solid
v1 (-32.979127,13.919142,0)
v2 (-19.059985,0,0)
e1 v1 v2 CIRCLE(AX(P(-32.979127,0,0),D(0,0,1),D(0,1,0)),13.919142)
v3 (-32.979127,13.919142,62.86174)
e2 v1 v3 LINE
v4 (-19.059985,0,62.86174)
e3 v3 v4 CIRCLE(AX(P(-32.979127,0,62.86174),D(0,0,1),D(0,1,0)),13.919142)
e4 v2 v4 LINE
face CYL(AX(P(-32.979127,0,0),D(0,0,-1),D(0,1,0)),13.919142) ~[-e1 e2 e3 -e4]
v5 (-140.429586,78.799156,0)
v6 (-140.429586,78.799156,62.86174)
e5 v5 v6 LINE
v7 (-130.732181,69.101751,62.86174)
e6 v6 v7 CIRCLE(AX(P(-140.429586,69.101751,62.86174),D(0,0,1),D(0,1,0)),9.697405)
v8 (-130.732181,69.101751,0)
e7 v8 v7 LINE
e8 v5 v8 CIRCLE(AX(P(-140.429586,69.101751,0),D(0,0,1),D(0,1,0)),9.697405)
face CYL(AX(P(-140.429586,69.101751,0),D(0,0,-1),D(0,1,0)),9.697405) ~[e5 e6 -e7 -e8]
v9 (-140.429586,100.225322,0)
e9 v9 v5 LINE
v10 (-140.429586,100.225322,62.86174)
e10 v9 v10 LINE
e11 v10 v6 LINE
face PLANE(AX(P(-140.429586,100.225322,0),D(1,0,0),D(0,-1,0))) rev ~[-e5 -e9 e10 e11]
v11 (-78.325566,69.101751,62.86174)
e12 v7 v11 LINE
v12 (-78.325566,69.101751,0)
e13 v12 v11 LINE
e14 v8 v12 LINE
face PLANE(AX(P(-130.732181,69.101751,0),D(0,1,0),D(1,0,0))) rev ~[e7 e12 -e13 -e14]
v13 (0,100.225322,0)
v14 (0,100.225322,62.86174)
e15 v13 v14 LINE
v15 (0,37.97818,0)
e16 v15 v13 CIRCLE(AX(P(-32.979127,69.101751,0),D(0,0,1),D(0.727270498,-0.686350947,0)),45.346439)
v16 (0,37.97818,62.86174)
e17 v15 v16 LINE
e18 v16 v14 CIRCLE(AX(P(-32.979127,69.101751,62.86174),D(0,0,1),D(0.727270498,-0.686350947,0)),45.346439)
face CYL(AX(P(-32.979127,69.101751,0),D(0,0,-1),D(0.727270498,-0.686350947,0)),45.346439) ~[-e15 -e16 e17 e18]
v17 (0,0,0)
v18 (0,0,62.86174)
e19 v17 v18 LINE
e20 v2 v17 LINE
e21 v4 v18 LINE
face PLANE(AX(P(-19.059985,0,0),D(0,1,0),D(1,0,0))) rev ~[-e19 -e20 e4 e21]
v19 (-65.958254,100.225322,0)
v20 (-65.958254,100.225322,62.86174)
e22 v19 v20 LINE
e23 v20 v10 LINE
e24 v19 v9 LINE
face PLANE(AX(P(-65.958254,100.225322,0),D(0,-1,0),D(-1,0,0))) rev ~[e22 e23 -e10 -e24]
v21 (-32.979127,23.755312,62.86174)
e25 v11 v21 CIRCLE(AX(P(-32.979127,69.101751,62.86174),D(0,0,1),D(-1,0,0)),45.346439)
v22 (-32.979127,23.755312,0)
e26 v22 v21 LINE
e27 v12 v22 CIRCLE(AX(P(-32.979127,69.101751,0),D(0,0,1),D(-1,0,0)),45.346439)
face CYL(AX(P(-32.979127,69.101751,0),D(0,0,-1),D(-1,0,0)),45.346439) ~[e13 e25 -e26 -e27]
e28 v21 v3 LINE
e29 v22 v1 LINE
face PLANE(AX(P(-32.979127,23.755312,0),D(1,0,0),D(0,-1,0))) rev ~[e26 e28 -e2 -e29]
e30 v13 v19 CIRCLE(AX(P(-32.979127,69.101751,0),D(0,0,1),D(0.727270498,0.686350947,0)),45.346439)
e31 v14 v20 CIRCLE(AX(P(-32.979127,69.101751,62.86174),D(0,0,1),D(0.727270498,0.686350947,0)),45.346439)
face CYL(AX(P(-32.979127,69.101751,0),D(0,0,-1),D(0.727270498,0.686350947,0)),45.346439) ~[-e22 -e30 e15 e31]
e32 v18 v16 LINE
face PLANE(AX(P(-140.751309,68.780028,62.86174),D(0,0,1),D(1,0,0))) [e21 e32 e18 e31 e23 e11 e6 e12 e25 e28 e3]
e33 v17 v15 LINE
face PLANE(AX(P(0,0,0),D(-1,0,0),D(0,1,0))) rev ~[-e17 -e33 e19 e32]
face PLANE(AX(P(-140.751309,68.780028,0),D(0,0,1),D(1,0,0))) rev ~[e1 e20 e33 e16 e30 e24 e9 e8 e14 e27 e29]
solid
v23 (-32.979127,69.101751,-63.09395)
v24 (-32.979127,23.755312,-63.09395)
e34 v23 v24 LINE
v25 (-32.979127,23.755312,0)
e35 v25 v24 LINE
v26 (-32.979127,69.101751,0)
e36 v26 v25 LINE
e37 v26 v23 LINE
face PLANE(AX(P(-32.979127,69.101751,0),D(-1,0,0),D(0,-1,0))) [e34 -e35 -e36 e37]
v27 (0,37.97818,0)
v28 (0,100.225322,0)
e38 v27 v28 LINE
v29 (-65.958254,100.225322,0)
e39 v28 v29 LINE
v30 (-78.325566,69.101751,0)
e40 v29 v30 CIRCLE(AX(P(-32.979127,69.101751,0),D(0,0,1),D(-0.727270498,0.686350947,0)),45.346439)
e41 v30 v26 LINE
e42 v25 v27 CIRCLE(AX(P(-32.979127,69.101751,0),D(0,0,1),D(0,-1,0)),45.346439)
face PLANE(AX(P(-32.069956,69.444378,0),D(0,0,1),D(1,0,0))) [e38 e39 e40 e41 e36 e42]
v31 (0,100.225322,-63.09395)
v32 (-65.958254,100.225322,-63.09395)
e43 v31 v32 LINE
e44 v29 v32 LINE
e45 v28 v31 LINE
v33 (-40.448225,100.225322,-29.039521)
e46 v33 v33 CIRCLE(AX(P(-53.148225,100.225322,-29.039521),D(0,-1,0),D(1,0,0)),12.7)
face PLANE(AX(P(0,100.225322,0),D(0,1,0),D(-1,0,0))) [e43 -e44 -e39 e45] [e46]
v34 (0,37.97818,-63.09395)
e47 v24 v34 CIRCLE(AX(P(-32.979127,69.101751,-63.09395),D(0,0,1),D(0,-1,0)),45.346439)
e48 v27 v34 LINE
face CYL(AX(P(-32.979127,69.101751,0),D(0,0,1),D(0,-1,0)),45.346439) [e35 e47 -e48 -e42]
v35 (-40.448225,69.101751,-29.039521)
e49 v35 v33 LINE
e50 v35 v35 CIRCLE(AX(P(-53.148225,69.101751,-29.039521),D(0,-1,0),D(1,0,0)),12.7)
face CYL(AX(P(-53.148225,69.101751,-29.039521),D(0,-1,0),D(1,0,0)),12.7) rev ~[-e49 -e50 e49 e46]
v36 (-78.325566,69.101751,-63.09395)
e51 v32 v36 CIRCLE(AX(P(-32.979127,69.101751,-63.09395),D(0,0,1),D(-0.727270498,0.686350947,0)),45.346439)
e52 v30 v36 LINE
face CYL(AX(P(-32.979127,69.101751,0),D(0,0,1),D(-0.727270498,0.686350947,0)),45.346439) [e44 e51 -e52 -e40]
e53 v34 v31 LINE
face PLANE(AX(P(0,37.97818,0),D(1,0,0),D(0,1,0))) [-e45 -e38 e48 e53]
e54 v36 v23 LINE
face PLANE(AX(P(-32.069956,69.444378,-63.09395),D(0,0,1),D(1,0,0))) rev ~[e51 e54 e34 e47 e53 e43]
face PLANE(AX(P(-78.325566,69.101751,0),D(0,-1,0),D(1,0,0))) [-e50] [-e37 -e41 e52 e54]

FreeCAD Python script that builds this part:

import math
import FreeCAD as App
import Part
import Sketcher

V = App.Vector
Q = App.Units.Quantity

doc = App.newDocument("Part")
params = doc.addObject("Spreadsheet::Sheet", "Params")
for row, (alias, value) in enumerate([
    ("pad1_length", "62.86174 mm"),
    ("pad2_length", "63.09395 mm"),
    ("sketch3_diameter", "1 in"),
    ("pocket1_length", "54.77137 mm"),
], start=1):
    params.set(f"A{row}", alias)
    params.set(f"B{row}", "=" + value)
    params.setAlias(f"B{row}", alias)

body = doc.addObject("PartDesign::Body", "Body")

# Sketch on XY plane
sketch1 = body.newObject("Sketcher::SketchObject", "Sketch")
sketch1.AttachmentSupport = (doc.getObject("XY_Plane"), [""])
sketch1.MapMode = "FlatFace"
sketch1.addGeometry([
    Part.ArcOfCircle(Part.Circle(V(-140, 69, 0), V(0, 0, 1), 10), math.radians(90), math.radians(360)),  # 0
    Part.LineSegment(V(-131, 69, 0), V(-78, 69, 0)),  # 1
    Part.ArcOfCircle(Part.Circle(V(-33, 69, 0), V(0, 0, 1), 45), math.radians(180), math.radians(270)),  # 2
    Part.LineSegment(V(-33, 24, 0), V(-33, 14, 0)),  # 3
    Part.ArcOfCircle(Part.Circle(V(-33, 0, 0), V(0, 0, 1), 14), math.radians(90), math.radians(360)),  # 4
    Part.LineSegment(V(-19, 0, 0), V(0, 0, 0)),  # 5
    Part.LineSegment(V(0, 0, 0), V(0, 38, 0)),  # 6
    Part.ArcOfCircle(Part.Circle(V(-33, 69, 0), V(0, 0, 1), 45), math.radians(-43), math.radians(43)),  # 7
    Part.ArcOfCircle(Part.Circle(V(-33, 69, 0), V(0, 0, 1), 45), math.radians(43), math.radians(137)),  # 8
    Part.LineSegment(V(-66, 100, 0), V(-140, 100, 0)),  # 9
    Part.LineSegment(V(-140, 100, 0), V(-140, 79, 0)),  # 10
], False)
sketch1.addConstraint([
    Sketcher.Constraint("Coincident", 0, 2, 1, 1),
    Sketcher.Constraint("Coincident", 1, 2, 2, 1),
    Sketcher.Constraint("Coincident", 2, 2, 3, 1),
    Sketcher.Constraint("Coincident", 3, 2, 4, 1),
    Sketcher.Constraint("Coincident", 4, 2, 5, 1),
    Sketcher.Constraint("Coincident", 5, 2, 6, 1),
    Sketcher.Constraint("Coincident", 6, 2, 7, 1),
    Sketcher.Constraint("Tangent", 7, 2, 8, 1),
    Sketcher.Constraint("Coincident", 8, 2, 9, 1),
    Sketcher.Constraint("Coincident", 9, 2, 10, 1),
    Sketcher.Constraint("Coincident", 10, 2, 0, 1),
    Sketcher.Constraint("Horizontal", 1),
    Sketcher.Constraint("Vertical", 3),
    Sketcher.Constraint("Horizontal", 5),
    Sketcher.Constraint("Vertical", 6),
    Sketcher.Constraint("Horizontal", 9),
    Sketcher.Constraint("Vertical", 10),
    Sketcher.Constraint("Coincident", 5, 2, -1, 1),
    Sketcher.Constraint("Coincident", 7, 3, 2, 3),
    Sketcher.Constraint("Equal", 2, 7),
    Sketcher.Constraint("Equal", 7, 8),
    Sketcher.Constraint("PointOnObject", 4, 3, -1),
    Sketcher.Constraint("PointOnObject", 7, 2, -2),
    Sketcher.Constraint("Horizontal", 0, 3, 2, 3),
    Sketcher.Constraint("Horizontal", 8, 3, 0, 2),
    Sketcher.Constraint("Horizontal", 7, 2, 8, 2),
    Sketcher.Constraint("Vertical", 2, 3, 4, 3),
    Sketcher.Constraint("Vertical", 8, 3, 2, 2),
    Sketcher.Constraint("Vertical", 0, 3, 9, 2),
    Sketcher.Constraint("Radius", 2, Q("45.346439 mm")),
    Sketcher.Constraint("Radius", 0, Q("9.697405 mm")),
    Sketcher.Constraint("Radius", 4, Q("13.919142 mm")),
    Sketcher.Constraint("DistanceY", 3, 2, 3, 1, Q("9.83617 mm")),
    Sketcher.Constraint("DistanceY", 6, 1, 6, 2, Q("37.97818 mm")),
    Sketcher.Constraint("DistanceX", 1, 1, 1, 2, Q("52.406616 mm")),
])
pad1 = body.newObject("PartDesign::Pad", "Pad")
pad1.Profile = sketch1
pad1.setExpression("Length", "Params.pad1_length")
body2 = doc.addObject("PartDesign::Body", "Body001")

# Sketch on XY plane
sketch2 = body2.newObject("Sketcher::SketchObject", "Sketch001")
sketch2.AttachmentSupport = (doc.getObject("XY_Plane001"), [""])
sketch2.MapMode = "FlatFace"
sketch2.addGeometry([
    Part.ArcOfCircle(Part.Circle(V(-33, 69, 0), V(0, 0, 1), 45), math.radians(-90), math.radians(-43)),  # 0
    Part.LineSegment(V(0, 38, 0), V(0, 100, 0)),  # 1
    Part.LineSegment(V(0, 100, 0), V(-66, 100, 0)),  # 2
    Part.ArcOfCircle(Part.Circle(V(-33, 69, 0), V(0, 0, 1), 45), math.radians(137), math.radians(180)),  # 3
    Part.LineSegment(V(-78, 69, 0), V(-33, 69, 0)),  # 4
    Part.LineSegment(V(-33, 69, 0), V(-33, 24, 0)),  # 5
], False)
sketch2.addConstraint([
    Sketcher.Constraint("Coincident", 0, 2, 1, 1),
    Sketcher.Constraint("Coincident", 1, 2, 2, 1),
    Sketcher.Constraint("Coincident", 2, 2, 3, 1),
    Sketcher.Constraint("Coincident", 3, 2, 4, 1),
    Sketcher.Constraint("Coincident", 4, 2, 5, 1),
    Sketcher.Constraint("Coincident", 5, 2, 0, 1),
    Sketcher.Constraint("Vertical", 1),
    Sketcher.Constraint("Horizontal", 2),
    Sketcher.Constraint("Horizontal", 4),
    Sketcher.Constraint("Vertical", 5),
    Sketcher.Constraint("Coincident", 3, 3, 0, 3),
    Sketcher.Constraint("Coincident", 4, 2, 0, 3),
    Sketcher.Constraint("Equal", 0, 3),
    Sketcher.Constraint("PointOnObject", 0, 2, -2),
    Sketcher.Constraint("Radius", 0, Q("45.346439 mm")),
    Sketcher.Constraint("DistanceX", 2, 2, 2, 1, Q("65.958254 mm")),
    Sketcher.Constraint("DistanceY", -1, 1, 0, 3, Q("69.101751 mm")),
    Sketcher.Constraint("DistanceY", -1, 1, 0, 2, Q("37.97818 mm")),
])
pad2 = body2.newObject("PartDesign::Pad", "Pad001")
pad2.Profile = sketch2
pad2.setExpression("Length", "Params.pad2_length")
pad2.Reversed = True

# Sketch on XZ plane
sketch3 = body2.newObject("Sketcher::SketchObject", "Sketch002")
sketch3.AttachmentSupport = (doc.getObject("XZ_Plane001"), [""])
sketch3.MapMode = "FlatFace"
sketch3.AttachmentOffset = App.Placement(V(0, 0, -69.101751), App.Rotation())
sketch3.addGeometry(Part.Circle(V(-53, -29, 0), V(0, 0, 1), 13), False)
sketch3.addConstraint([
    Sketcher.Constraint("Diameter", 0, Q("1 in")),
    Sketcher.Constraint("DistanceY", 0, 3, -1, 1, Q("29.039521 mm")),
    Sketcher.Constraint("DistanceX", 0, 3, -1, 1, Q("53.148225 mm")),
])
sketch3.setExpression("Constraints[0]", "Params.sketch3_diameter")
pocket1 = body2.newObject("PartDesign::Pocket", "Pocket")
pocket1.Profile = sketch3
pocket1.setExpression("Length", "Params.pocket1_length")

doc.recompute()
